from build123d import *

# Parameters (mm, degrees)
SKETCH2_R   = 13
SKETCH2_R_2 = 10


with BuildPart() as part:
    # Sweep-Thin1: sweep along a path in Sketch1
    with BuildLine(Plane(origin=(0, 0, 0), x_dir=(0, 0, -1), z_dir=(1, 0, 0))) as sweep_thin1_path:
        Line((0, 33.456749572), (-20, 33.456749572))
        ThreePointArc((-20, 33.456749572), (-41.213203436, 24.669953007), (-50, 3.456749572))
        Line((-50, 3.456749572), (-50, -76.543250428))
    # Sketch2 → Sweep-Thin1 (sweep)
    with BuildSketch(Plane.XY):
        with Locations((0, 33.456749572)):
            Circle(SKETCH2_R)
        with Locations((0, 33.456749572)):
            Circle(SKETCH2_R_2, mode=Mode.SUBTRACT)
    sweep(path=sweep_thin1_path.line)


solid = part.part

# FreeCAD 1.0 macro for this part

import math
import FreeCAD as App
import Part
import Sketcher
Q = App.Units.Quantity

doc = App.newDocument("Part")
params = doc.addObject("Spreadsheet::Sheet", "Params")
for row, (alias, value) in enumerate([
    ("sketch1_diameter", "26 mm"),
    ("sketch1_diameter2", "20 mm"),
    ("sketch2_radius", "30 mm"),
    ("sketch2_width", "80 mm"),
    ("sketch2_height", "20 mm"),
], start=1):
    params.set(f"A{row}", alias)
    params.set(f"B{row}", "=" + value)
    params.setAlias(f"B{row}", alias)

body = doc.addObject("PartDesign::Body", "Body")

sketch1 = body.newObject("Sketcher::SketchObject", "Sketch")
sketch1.AttachmentSupport = (doc.getObject("XY_Plane"), [""])
sketch1.MapMode = "FlatFace"
sketch1.addGeometry([
    Part.Circle(App.Vector(0, 33, 0), App.Vector(0, 0, 1), 13),
    Part.Circle(App.Vector(0, 33, 0), App.Vector(0, 0, 1), 10),
], False)
sketch1.addConstraint([
    Sketcher.Constraint("Coincident", 1, 3, 0, 3),
    Sketcher.Constraint("PointOnObject", 0, 3, -2),
    Sketcher.Constraint("Diameter", 0, Q("26 mm")),
    Sketcher.Constraint("Diameter", 1, Q("20 mm")),
    Sketcher.Constraint("DistanceY", -1, 1, 0, 3, Q("33.45675 mm")),
])
sketch1.setExpression("Constraints[2]", "Params.sketch1_diameter")
sketch1.setExpression("Constraints[3]", "Params.sketch1_diameter2")

sketch2 = body.newObject("Sketcher::SketchObject", "Sketch001")
sketch2.AttachmentSupport = (doc.getObject("YZ_Plane"), [""])
sketch2.MapMode = "FlatFace"
sketch2.addGeometry([
    Part.LineSegment(App.Vector(33, 0, 0), App.Vector(33, 20, 0)),
    Part.ArcOfCircle(Part.Circle(App.Vector(3, 20, 0), App.Vector(0, 0, 1), 30), math.radians(0), math.radians(90)),
    Part.LineSegment(App.Vector(3, 50, 0), App.Vector(-77, 50, 0)),
], False)
sketch2.addConstraint([
    Sketcher.Constraint("Tangent", 0, 2, 1, 1),
    Sketcher.Constraint("Tangent", 1, 2, 2, 1),
    Sketcher.Constraint("Vertical", 0),
    Sketcher.Constraint("Horizontal", 2),
    Sketcher.Constraint("PointOnObject", 0, 1, -1),
    Sketcher.Constraint("Radius", 1, Q("30 mm")),
    Sketcher.Constraint("DistanceX", 2, 2, 2, 1, Q("80 mm")),
    Sketcher.Constraint("DistanceY", 0, 1, 0, 2, Q("20 mm")),
    Sketcher.Constraint("DistanceX", -1, 1, 1, 3, Q("3.45675 mm")),
])
sketch2.setExpression("Constraints[5]", "Params.sketch2_radius")
sketch2.setExpression("Constraints[6]", "Params.sketch2_width")
sketch2.setExpression("Constraints[7]", "Params.sketch2_height")
doc.recompute()

additivepipe = body.newObject("PartDesign::AdditivePipe", "AdditivePipe")
additivepipe.Profile = sketch1
additivepipe.Spine = (sketch2, ["Edge1", "Edge2", "Edge3"])

doc.recompute()
